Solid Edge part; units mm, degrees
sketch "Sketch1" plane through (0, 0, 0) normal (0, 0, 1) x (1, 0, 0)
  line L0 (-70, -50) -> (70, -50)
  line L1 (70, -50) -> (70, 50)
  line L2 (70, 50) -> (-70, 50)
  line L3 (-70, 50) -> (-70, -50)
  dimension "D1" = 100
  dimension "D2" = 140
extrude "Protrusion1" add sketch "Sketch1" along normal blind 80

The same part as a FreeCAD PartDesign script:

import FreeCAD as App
import Part
import Sketcher
Q = App.Units.Quantity


def add_polygon(sketch, points):
    """Adds a closed chain of lines whose ends are joined by coincident constraints."""
    first, n = sketch.GeometryCount, len(points)
    for a, b in zip(points, points[1:] + points[:1]):
        sketch.addGeometry(Part.LineSegment(App.Vector(*a, 0), App.Vector(*b, 0)), False)
    for i in range(n):
        sketch.addConstraint(Sketcher.Constraint("Coincident", first + i, 2, first + (i + 1) % n, 1))

doc = App.newDocument("Part")
body = doc.addObject("PartDesign::Body", "Body")

sketch1 = body.newObject("Sketcher::SketchObject", "Sketch")
sketch1.AttachmentSupport = (doc.getObject("XY_Plane"), [""])
sketch1.MapMode = "FlatFace"
add_polygon(sketch1, [(-70, 50), (-70, -50), (70, -50), (70, 50)])
sketch1.addConstraint([
    Sketcher.Constraint("Vertical", 0),
    Sketcher.Constraint("Horizontal", 1),
    Sketcher.Constraint("Vertical", 2),
    Sketcher.Constraint("Horizontal", 3),
    Sketcher.Constraint("Symmetric", 0, 2, 2, 2, -1, 1),
    Sketcher.Constraint("DistanceX", 0, 2, -1, 1, Q("2.7559 in")),
    Sketcher.Constraint("DistanceY", 0, 2, 0, 1, Q("3.937 in")),
])
pad1 = body.newObject("PartDesign::Pad", "Pad")
pad1.Profile = sketch1
pad1.Length = Q("3.1496063 in")

doc.recompute()
